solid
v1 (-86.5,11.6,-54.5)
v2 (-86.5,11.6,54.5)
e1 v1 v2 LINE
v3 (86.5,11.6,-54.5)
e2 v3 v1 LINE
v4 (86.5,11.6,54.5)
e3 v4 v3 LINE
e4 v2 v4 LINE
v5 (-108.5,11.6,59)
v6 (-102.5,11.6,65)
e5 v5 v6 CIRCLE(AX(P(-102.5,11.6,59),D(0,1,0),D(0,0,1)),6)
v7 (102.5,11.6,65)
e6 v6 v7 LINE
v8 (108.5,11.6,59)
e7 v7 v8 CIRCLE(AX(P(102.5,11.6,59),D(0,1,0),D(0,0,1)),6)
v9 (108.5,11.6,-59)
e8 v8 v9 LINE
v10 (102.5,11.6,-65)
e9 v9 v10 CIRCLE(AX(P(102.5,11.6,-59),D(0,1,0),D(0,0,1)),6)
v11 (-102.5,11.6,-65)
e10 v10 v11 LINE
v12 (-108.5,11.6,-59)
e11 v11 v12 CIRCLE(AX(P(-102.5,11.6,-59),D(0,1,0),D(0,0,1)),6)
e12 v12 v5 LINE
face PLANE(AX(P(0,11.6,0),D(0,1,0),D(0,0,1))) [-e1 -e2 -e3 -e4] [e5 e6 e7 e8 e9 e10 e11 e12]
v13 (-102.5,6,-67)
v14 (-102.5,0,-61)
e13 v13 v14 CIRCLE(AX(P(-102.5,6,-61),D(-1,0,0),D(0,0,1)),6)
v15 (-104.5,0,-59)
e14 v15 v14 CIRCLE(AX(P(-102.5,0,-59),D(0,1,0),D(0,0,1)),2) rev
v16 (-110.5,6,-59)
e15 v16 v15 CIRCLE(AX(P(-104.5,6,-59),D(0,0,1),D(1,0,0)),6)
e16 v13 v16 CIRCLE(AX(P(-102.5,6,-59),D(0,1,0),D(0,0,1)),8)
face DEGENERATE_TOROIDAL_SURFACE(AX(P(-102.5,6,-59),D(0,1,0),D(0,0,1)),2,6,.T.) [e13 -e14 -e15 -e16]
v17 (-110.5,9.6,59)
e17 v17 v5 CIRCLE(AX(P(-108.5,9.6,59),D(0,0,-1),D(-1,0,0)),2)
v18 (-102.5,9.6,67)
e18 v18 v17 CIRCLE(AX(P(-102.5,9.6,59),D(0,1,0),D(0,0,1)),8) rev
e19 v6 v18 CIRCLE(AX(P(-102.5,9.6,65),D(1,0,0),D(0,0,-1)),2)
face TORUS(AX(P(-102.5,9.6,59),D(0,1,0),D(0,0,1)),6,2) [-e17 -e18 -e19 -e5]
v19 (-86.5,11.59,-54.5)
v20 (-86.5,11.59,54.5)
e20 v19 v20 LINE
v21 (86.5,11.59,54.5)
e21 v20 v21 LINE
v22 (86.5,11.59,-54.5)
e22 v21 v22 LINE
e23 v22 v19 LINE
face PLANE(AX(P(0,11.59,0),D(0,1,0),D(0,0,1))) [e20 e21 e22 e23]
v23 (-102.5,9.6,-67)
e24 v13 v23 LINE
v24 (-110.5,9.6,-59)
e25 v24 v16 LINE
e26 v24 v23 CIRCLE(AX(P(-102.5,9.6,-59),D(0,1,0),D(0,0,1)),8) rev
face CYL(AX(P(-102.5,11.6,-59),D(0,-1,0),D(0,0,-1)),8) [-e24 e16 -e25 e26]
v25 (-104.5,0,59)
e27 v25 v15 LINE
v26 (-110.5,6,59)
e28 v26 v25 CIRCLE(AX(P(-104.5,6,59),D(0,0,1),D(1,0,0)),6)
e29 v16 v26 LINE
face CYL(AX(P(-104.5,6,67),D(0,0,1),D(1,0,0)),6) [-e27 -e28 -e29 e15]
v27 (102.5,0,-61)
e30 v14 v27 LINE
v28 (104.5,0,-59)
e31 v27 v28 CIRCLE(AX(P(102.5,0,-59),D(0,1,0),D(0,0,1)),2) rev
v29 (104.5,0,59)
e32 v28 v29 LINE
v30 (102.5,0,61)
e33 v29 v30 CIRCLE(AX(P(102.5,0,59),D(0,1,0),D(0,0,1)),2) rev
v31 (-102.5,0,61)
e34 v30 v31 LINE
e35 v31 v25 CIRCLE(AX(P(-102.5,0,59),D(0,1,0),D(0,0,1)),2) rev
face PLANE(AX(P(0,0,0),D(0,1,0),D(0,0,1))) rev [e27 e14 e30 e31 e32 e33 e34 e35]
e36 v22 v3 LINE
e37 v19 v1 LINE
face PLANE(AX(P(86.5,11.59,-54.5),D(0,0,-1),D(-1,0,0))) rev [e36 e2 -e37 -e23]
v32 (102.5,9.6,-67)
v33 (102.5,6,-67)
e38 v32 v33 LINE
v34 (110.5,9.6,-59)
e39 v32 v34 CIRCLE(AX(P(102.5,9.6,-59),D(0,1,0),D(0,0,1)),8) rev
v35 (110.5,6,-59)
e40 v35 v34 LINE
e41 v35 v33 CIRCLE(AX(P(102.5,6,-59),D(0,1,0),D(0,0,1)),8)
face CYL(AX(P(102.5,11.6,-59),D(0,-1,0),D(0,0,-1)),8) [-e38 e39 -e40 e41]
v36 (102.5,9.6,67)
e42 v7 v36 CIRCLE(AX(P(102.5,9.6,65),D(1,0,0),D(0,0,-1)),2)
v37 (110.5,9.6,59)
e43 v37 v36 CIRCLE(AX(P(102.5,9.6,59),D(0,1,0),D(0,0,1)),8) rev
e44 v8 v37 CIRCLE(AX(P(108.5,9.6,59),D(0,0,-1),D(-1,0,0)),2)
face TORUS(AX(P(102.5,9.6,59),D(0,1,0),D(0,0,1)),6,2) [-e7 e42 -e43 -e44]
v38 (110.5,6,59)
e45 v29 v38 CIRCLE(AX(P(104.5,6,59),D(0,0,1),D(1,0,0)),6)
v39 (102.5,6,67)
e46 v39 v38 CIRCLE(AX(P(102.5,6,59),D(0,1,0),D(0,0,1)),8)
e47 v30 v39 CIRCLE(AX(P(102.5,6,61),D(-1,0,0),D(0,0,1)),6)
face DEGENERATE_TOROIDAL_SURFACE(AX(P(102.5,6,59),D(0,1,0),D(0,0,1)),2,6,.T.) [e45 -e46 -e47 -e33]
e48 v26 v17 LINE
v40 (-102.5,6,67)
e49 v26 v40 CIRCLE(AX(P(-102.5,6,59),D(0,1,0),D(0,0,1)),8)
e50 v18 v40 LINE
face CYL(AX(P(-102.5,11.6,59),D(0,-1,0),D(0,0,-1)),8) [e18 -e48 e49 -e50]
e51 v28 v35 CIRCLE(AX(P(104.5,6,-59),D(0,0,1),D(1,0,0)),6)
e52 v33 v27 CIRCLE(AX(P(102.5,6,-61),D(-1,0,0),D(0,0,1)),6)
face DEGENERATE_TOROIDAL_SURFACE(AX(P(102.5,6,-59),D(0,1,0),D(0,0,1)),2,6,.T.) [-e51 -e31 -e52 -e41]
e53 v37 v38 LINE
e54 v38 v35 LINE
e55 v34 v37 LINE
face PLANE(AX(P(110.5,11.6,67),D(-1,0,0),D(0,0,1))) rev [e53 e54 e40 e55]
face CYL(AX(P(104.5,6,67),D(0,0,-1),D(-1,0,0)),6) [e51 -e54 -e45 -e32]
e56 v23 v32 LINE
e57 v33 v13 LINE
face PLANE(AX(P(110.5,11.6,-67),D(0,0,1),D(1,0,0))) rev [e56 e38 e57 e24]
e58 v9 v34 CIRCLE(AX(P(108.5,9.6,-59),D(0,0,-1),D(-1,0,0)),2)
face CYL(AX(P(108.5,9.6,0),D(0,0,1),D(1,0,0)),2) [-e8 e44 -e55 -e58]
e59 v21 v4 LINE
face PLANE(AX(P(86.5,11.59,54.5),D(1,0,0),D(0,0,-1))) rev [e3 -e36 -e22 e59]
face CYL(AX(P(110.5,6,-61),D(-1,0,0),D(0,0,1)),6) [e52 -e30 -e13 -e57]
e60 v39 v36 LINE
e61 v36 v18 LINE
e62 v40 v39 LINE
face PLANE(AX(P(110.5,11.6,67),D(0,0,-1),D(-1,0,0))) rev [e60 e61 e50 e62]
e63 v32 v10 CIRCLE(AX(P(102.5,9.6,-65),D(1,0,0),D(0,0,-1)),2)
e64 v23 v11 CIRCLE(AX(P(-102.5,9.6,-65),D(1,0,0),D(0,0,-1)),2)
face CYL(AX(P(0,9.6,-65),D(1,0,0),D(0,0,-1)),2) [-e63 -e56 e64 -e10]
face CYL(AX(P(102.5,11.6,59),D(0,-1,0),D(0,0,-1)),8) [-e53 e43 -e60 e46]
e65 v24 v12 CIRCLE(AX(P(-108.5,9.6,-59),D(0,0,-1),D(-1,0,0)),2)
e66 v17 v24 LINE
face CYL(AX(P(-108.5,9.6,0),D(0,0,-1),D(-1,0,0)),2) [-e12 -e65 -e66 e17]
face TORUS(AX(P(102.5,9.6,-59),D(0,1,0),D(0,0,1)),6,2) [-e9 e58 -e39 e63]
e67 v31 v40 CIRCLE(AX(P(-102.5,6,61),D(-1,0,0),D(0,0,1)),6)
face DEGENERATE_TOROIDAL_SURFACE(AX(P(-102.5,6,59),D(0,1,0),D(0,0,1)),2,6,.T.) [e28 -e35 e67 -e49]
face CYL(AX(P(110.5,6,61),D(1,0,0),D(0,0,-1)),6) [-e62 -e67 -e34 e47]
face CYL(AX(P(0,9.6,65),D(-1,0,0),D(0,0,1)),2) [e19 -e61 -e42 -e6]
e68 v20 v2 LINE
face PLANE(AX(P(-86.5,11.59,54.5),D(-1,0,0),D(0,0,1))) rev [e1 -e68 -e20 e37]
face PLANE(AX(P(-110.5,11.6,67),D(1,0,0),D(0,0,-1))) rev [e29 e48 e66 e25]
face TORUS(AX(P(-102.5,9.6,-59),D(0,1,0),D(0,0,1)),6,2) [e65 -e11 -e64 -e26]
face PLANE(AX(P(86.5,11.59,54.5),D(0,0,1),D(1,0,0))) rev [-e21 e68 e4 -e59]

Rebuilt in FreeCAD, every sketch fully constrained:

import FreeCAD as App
import Part
import Sketcher

V = App.Vector
Q = App.Units.Quantity


def edges_at(feature, points):
    """Names of the edges that pass closest to the given points."""
    edges = feature.Shape.Edges
    near = lambda p: min(range(len(edges)), key=lambda i: edges[i].distToShape(Part.Vertex(*p))[0])
    return sorted({f"Edge{near(p) + 1}" for p in points})


def add_polygon(sketch, points):
    """Adds a closed chain of lines whose ends are joined by coincident constraints."""
    first, n = sketch.GeometryCount, len(points)
    for a, b in zip(points, points[1:] + points[:1]):
        sketch.addGeometry(Part.LineSegment(App.Vector(*a, 0), App.Vector(*b, 0)), False)
    for i in range(n):
        sketch.addConstraint(Sketcher.Constraint("Coincident", first + i, 2, first + (i + 1) % n, 1))

doc = App.newDocument("Part")
body = doc.addObject("PartDesign::Body", "Body")

# Sketch on XZ plane
sketch1 = doc.addObject("Sketcher::SketchObject", "Sketch")
body.addObject(sketch1)
sketch1.AttachmentSupport = (doc.XZ_Plane, [""])
sketch1.MapMode = "FlatFace"
add_polygon(sketch1, [(-110, -67), (-110, 67), (110, 67), (110, -67)])  # lines 0-3
sketch1.addConstraint(Sketcher.Constraint("Vertical", 0))
sketch1.addConstraint(Sketcher.Constraint("Horizontal", 1))
sketch1.addConstraint(Sketcher.Constraint("Vertical", 2))
sketch1.addConstraint(Sketcher.Constraint("Horizontal", 3))
sketch1.addConstraint(Sketcher.Constraint("Symmetric", 0, 2, 2, 2, -1, 1))
sketch1.addConstraint(Sketcher.Constraint("DistanceX", 1, 1, 1, 2, Q("221 mm")))
sketch1.addConstraint(Sketcher.Constraint("DistanceY", 0, 1, 0, 2, Q("134 mm")))
pad1 = doc.addObject("PartDesign::Pad", "Pad")
body.addObject(pad1)
pad1.Profile = sketch1
pad1.Length = 11.6
pad1.Reversed = True
doc.recompute()

fillet = doc.addObject("PartDesign::Fillet", "Fillet")
body.addObject(fillet)
fillet.Base = (pad1, edges_at(pad1, [
    (-110.5, 5.8, -67),
    (110.5, 5.8, -67),
    (110.5, 5.8, 67),
    (-110.5, 5.8, 67),
]))
fillet.Radius = 8
doc.recompute()

fillet2 = doc.addObject("PartDesign::Fillet", "Fillet001")
body.addObject(fillet2)
fillet2.Base = (fillet, edges_at(fillet, [
    (-110.5, 11.6, 0),
    (0, 11.6, -67),
    (0, 11.6, 67),
    (110.5, 11.6, 0),
    (-108.157, 11.6, 64.657),
    (108.157, 11.6, 64.657),
    (108.157, 11.6, -64.657),
    (-108.157, 11.6, -64.657),
]))
fillet2.Radius = 2
doc.recompute()

fillet3 = doc.addObject("PartDesign::Fillet", "Fillet002")
body.addObject(fillet3)
fillet3.Base = (fillet2, edges_at(fillet2, [
    (-110.5, 0, 0),
    (0, 0, -67),
    (110.5, 0, 0),
    (0, 0, 67),
    (-108.157, 0, 64.657),
    (108.157, 0, 64.657),
    (108.157, 0, -64.657),
    (-108.157, 0, -64.657),
]))
fillet3.Radius = 6

# Sketch on XZ plane
sketch2 = doc.addObject("Sketcher::SketchObject", "Sketch001")
body.addObject(sketch2)
sketch2.AttachmentSupport = (doc.XZ_Plane, [""])
sketch2.MapMode = "FlatFace"
sketch2.AttachmentOffset = App.Placement(V(0, 0, -11.6), App.Rotation())
add_polygon(sketch2, [(-86, -54), (-86, 54), (86, 54), (86, -54)])  # lines 0-3
sketch2.addConstraint(Sketcher.Constraint("Vertical", 0))
sketch2.addConstraint(Sketcher.Constraint("Horizontal", 1))
sketch2.addConstraint(Sketcher.Constraint("Vertical", 2))
sketch2.addConstraint(Sketcher.Constraint("Horizontal", 3))
sketch2.addConstraint(Sketcher.Constraint("Symmetric", 0, 2, 2, 2, -1, 1))
sketch2.addConstraint(Sketcher.Constraint("DistanceX", 1, 1, 1, 2, Q("173 mm")))
sketch2.addConstraint(Sketcher.Constraint("DistanceY", 0, 1, 0, 2, Q("109 mm")))
pocket1 = doc.addObject("PartDesign::Pocket", "Pocket")
body.addObject(pocket1)
pocket1.Profile = sketch2
pocket1.Length = 0.01
pocket1.Reversed = True

doc.recompute()
